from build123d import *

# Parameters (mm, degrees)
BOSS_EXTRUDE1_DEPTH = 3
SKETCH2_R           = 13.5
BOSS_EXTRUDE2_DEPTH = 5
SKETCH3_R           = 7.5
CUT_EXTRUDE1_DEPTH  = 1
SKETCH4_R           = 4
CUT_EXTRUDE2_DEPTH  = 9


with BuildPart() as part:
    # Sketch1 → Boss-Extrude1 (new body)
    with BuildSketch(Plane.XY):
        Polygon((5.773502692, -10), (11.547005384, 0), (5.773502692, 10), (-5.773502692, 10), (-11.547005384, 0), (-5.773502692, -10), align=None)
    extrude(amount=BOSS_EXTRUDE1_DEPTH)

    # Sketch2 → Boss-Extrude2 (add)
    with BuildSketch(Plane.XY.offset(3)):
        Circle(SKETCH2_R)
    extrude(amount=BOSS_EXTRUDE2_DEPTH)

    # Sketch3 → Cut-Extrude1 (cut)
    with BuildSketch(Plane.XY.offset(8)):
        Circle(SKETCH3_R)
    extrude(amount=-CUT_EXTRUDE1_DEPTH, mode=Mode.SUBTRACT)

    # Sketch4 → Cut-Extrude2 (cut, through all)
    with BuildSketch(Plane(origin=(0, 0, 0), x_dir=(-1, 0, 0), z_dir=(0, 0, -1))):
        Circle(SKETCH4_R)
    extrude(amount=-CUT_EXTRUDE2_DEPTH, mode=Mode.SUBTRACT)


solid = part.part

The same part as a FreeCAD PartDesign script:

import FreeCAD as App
import Part
import Sketcher
from FreeCAD import Vector
Q = App.Units.Quantity

doc = App.newDocument("Part")
body = doc.addObject("PartDesign::Body", "Body")

# Sketch on XY plane
sketch1 = body.newObject("Sketcher::SketchObject", "Sketch")
sketch1.AttachmentSupport = (doc.getObject("XY_Plane"), [""])
sketch1.MapMode = "FlatFace"
sketch1.addGeometry(Part.LineSegment(Vector(6, -10, 0), Vector(12, 0, 0)), False)
sketch1.addGeometry(Part.LineSegment(Vector(12, 0, 0), Vector(6, 10, 0)), False)
sketch1.addGeometry(Part.LineSegment(Vector(6, 10, 0), Vector(-6, 10, 0)), False)
sketch1.addGeometry(Part.LineSegment(Vector(-6, 10, 0), Vector(-12, 0, 0)), False)
sketch1.addGeometry(Part.LineSegment(Vector(-12, 0, 0), Vector(-6, -10, 0)), False)
sketch1.addGeometry(Part.LineSegment(Vector(-6, -10, 0), Vector(6, -10, 0)), False)
sketch1.addConstraint(Sketcher.Constraint("Coincident", 0, 2, 1, 1))
sketch1.addConstraint(Sketcher.Constraint("Coincident", 1, 2, 2, 1))
sketch1.addConstraint(Sketcher.Constraint("Coincident", 2, 2, 3, 1))
sketch1.addConstraint(Sketcher.Constraint("Coincident", 3, 2, 4, 1))
sketch1.addConstraint(Sketcher.Constraint("Coincident", 4, 2, 5, 1))
sketch1.addConstraint(Sketcher.Constraint("Coincident", 5, 2, 0, 1))
sketch1.addConstraint(Sketcher.Constraint("Horizontal", 2))
sketch1.addConstraint(Sketcher.Constraint("Horizontal", 5))
sketch1.addConstraint(Sketcher.Constraint("Symmetric", 0, 2, 3, 2, -1, 1))
sketch1.addConstraint(Sketcher.Constraint("Symmetric", 1, 2, 4, 2, -1, 1))
sketch1.addConstraint(Sketcher.Constraint("PointOnObject", 0, 2, -1))
sketch1.addConstraint(Sketcher.Constraint("Parallel", 0, 3))
sketch1.addConstraint(Sketcher.Constraint("Vertical", 2, 2, 4, 2))
sketch1.addConstraint(Sketcher.Constraint("Angle", 0, Q("60 deg")))
sketch1.addConstraint(Sketcher.Constraint("DistanceY", -1, 1, 1, 2, Q("10 mm")))
sketch1.addConstraint(Sketcher.Constraint("DistanceX", 2, 2, 2, 1, Q("11.547005 mm")))
pad1 = body.newObject("PartDesign::Pad", "Pad")
pad1.Profile = sketch1
pad1.Length = 3

# Sketch on XY plane
sketch2 = body.newObject("Sketcher::SketchObject", "Sketch001")
sketch2.AttachmentSupport = (doc.getObject("XY_Plane"), [""])
sketch2.MapMode = "FlatFace"
sketch2.AttachmentOffset = App.Placement(Vector(0, 0, 3), App.Rotation())
sketch2.addGeometry(Part.Circle(Vector(0, 0, 0), Vector(0, 0, 1), 14), False)
sketch2.addConstraint(Sketcher.Constraint("Coincident", 0, 3, -1, 1))
sketch2.addConstraint(Sketcher.Constraint("Diameter", 0, Q("27 mm")))
pad2 = body.newObject("PartDesign::Pad", "Pad001")
pad2.Profile = sketch2
pad2.Length = 5

# Sketch on XY plane
sketch3 = body.newObject("Sketcher::SketchObject", "Sketch002")
sketch3.AttachmentSupport = (doc.getObject("XY_Plane"), [""])
sketch3.MapMode = "FlatFace"
sketch3.AttachmentOffset = App.Placement(Vector(0, 0, 8), App.Rotation())
sketch3.addGeometry(Part.Circle(Vector(0, 0, 0), Vector(0, 0, 1), 8), False)
sketch3.addConstraint(Sketcher.Constraint("Coincident", 0, 3, -1, 1))
sketch3.addConstraint(Sketcher.Constraint("Diameter", 0, Q("15 mm")))
pocket1 = body.newObject("PartDesign::Pocket", "Pocket")
pocket1.Profile = sketch3
pocket1.Length = 1

# Sketch on XY plane
sketch4 = body.newObject("Sketcher::SketchObject", "Sketch003")
sketch4.AttachmentSupport = (doc.getObject("XY_Plane"), [""])
sketch4.MapMode = "FlatFace"
sketch4.addGeometry(Part.Circle(Vector(0, 0, 0), Vector(0, 0, 1), 4), False)
sketch4.addConstraint(Sketcher.Constraint("Coincident", 0, 3, -1, 1))
sketch4.addConstraint(Sketcher.Constraint("Diameter", 0, Q("8 mm")))
pocket2 = body.newObject("PartDesign::Pocket", "Pocket001")
pocket2.Profile = sketch4
pocket2.Type = "ThroughAll"
pocket2.Reversed = True

doc.recompute()
